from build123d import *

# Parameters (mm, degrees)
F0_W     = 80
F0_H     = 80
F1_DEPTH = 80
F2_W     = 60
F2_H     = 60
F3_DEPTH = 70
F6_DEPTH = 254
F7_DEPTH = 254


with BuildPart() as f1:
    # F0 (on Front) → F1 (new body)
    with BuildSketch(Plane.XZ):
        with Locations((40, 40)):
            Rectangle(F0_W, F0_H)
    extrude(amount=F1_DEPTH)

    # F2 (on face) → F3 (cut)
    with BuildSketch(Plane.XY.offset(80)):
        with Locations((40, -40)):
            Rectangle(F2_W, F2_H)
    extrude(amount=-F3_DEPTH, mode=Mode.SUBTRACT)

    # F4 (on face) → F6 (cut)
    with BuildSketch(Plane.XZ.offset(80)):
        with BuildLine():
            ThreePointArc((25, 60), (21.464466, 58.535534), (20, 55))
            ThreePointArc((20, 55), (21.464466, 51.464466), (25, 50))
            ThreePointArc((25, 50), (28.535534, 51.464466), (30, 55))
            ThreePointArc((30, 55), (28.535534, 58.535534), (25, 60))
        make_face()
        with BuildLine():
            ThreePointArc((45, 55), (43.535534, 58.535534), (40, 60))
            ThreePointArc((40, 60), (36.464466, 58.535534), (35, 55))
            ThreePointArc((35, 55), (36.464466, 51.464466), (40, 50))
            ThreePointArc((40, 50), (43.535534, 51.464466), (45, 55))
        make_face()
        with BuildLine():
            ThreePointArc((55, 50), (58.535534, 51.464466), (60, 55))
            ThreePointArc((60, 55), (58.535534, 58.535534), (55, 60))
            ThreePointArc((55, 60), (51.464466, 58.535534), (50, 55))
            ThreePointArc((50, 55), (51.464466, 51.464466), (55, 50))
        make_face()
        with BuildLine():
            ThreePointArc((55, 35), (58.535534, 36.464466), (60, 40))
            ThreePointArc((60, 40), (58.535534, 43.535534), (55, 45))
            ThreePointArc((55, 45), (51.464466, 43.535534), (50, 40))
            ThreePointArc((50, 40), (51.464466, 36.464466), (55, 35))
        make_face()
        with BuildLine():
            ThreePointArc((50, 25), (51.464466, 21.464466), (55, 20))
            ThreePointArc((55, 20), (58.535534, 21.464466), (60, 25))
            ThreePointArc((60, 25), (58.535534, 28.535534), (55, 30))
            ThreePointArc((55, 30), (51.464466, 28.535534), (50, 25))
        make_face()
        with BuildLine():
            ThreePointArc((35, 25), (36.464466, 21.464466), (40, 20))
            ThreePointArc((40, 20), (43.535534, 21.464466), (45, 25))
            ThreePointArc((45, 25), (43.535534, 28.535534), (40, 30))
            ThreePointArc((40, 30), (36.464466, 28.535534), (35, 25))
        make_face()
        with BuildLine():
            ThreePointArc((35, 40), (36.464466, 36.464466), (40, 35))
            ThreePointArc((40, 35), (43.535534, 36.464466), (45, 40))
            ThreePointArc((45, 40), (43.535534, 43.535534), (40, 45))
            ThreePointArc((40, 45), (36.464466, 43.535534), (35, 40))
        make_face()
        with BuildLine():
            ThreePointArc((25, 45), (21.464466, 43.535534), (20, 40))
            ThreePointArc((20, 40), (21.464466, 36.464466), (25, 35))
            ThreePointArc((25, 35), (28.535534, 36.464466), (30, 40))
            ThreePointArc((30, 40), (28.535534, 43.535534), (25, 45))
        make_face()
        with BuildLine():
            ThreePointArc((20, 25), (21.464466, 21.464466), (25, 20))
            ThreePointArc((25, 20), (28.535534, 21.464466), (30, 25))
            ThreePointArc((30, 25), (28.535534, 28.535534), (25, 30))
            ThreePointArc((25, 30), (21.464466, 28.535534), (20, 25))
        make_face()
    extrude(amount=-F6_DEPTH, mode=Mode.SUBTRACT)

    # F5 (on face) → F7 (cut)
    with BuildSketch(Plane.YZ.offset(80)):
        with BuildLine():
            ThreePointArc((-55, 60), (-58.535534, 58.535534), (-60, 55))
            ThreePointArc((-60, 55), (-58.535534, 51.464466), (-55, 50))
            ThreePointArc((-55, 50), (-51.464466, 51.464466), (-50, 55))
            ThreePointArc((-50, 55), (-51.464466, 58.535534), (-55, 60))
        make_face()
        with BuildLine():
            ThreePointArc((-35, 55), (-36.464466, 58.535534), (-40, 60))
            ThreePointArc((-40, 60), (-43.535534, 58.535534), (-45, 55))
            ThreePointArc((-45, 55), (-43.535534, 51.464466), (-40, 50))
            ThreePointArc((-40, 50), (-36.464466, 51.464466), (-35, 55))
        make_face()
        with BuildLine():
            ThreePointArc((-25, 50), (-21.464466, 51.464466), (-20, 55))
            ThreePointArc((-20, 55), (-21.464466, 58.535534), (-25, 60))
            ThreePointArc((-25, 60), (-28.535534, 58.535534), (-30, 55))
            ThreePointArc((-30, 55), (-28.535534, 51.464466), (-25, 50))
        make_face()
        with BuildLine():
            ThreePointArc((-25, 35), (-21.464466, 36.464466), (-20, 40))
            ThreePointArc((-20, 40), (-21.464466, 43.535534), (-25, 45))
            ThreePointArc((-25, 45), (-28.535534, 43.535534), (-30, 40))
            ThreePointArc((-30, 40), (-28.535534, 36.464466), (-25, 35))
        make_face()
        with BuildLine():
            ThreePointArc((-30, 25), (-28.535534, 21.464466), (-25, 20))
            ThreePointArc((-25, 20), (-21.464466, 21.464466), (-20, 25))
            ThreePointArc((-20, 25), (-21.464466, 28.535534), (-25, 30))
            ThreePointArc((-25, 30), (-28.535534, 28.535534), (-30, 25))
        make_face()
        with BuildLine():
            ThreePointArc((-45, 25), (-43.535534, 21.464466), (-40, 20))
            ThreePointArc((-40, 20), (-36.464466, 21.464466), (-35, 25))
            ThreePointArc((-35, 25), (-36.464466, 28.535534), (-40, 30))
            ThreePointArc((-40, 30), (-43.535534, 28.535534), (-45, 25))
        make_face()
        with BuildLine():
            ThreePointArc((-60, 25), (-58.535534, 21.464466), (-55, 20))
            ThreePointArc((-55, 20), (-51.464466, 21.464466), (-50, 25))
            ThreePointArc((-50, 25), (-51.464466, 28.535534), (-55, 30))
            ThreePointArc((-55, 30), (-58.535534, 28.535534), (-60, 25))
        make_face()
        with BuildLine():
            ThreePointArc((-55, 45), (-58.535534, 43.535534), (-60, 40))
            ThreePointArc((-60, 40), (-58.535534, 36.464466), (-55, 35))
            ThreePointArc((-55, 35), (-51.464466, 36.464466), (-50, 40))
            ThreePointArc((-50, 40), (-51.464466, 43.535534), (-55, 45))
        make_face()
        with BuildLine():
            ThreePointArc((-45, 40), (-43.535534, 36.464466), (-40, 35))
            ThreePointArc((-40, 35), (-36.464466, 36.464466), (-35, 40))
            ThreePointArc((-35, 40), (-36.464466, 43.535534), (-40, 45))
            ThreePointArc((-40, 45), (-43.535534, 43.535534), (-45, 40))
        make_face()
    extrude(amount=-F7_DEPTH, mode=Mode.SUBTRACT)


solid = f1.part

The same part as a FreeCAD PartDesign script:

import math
import FreeCAD as App
import Part
import Sketcher
from FreeCAD import Vector

doc = App.newDocument("Part")
body = doc.addObject("PartDesign::Body", "Body")

# Sketch on XZ plane
sketch1 = body.newObject("Sketcher::SketchObject", "Sketch")
sketch1.AttachmentSupport = (doc.getObject("XZ_Plane"), [""])
sketch1.MapMode = "FlatFace"
sketch1.addGeometry(Part.LineSegment(Vector(0, 80, 0), Vector(0, 0, 0)), False)
sketch1.addGeometry(Part.LineSegment(Vector(0, 0, 0), Vector(80, 0, 0)), False)
sketch1.addGeometry(Part.LineSegment(Vector(80, 0, 0), Vector(80, 80, 0)), False)
sketch1.addGeometry(Part.LineSegment(Vector(80, 80, 0), Vector(0, 80, 0)), False)
sketch1.addConstraint(Sketcher.Constraint("Coincident", 0, 2, 1, 1))
sketch1.addConstraint(Sketcher.Constraint("Coincident", 1, 2, 2, 1))
sketch1.addConstraint(Sketcher.Constraint("Coincident", 2, 2, 3, 1))
sketch1.addConstraint(Sketcher.Constraint("Coincident", 3, 2, 0, 1))
sketch1.addConstraint(Sketcher.Constraint("Vertical", 0))
sketch1.addConstraint(Sketcher.Constraint("Horizontal", 1))
sketch1.addConstraint(Sketcher.Constraint("Vertical", 2))
sketch1.addConstraint(Sketcher.Constraint("Horizontal", 3))
sketch1.addConstraint(Sketcher.Constraint("Coincident", 0, 2, -1, 1))
sketch1.addConstraint(Sketcher.Constraint("Equal", 3, 0))
sketch1.addConstraint(Sketcher.Constraint("DistanceX", 1, 1, 1, 2, 80.0))
pad1 = body.newObject("PartDesign::Pad", "Pad")
pad1.Profile = sketch1
pad1.Length = 80

# Sketch on XY plane
sketch2 = body.newObject("Sketcher::SketchObject", "Sketch001")
sketch2.AttachmentSupport = (doc.getObject("XY_Plane"), [""])
sketch2.MapMode = "FlatFace"
sketch2.AttachmentOffset = App.Placement(Vector(0, 0, 80), App.Rotation())
sketch2.addGeometry(Part.LineSegment(Vector(10, -10, 0), Vector(10, -70, 0)), False)
sketch2.addGeometry(Part.LineSegment(Vector(10, -70, 0), Vector(70, -70, 0)), False)
sketch2.addGeometry(Part.LineSegment(Vector(70, -70, 0), Vector(70, -10, 0)), False)
sketch2.addGeometry(Part.LineSegment(Vector(70, -10, 0), Vector(10, -10, 0)), False)
sketch2.addConstraint(Sketcher.Constraint("Coincident", 0, 2, 1, 1))
sketch2.addConstraint(Sketcher.Constraint("Coincident", 1, 2, 2, 1))
sketch2.addConstraint(Sketcher.Constraint("Coincident", 2, 2, 3, 1))
sketch2.addConstraint(Sketcher.Constraint("Coincident", 3, 2, 0, 1))
sketch2.addConstraint(Sketcher.Constraint("Vertical", 0))
sketch2.addConstraint(Sketcher.Constraint("Horizontal", 1))
sketch2.addConstraint(Sketcher.Constraint("Vertical", 2))
sketch2.addConstraint(Sketcher.Constraint("Horizontal", 3))
sketch2.addConstraint(Sketcher.Constraint("Equal", 3, 0))
sketch2.addConstraint(Sketcher.Constraint("DistanceX", 1, 1, 1, 2, 60.0))
sketch2.addConstraint(Sketcher.Constraint("DistanceX", -1, 1, 0, 2, 10.0))
sketch2.addConstraint(Sketcher.Constraint("DistanceY", 0, 2, -1, 1, 70.0))
pocket1 = body.newObject("PartDesign::Pocket", "Pocket")
pocket1.Profile = sketch2
pocket1.Length = 70

# Sketch on XZ plane
sketch3 = body.newObject("Sketcher::SketchObject", "Sketch002")
sketch3.AttachmentSupport = (doc.getObject("XZ_Plane"), [""])
sketch3.MapMode = "FlatFace"
sketch3.AttachmentOffset = App.Placement(Vector(0, 0, 80), App.Rotation())
sketch3.addGeometry(Part.ArcOfCircle(Part.Circle(Vector(25, 55, 0), Vector(0, 0, 1), 5), math.radians(90), math.radians(180)), False)
sketch3.addGeometry(Part.ArcOfCircle(Part.Circle(Vector(25, 55, 0), Vector(0, 0, 1), 5), math.radians(180), math.radians(270)), False)
sketch3.addGeometry(Part.ArcOfCircle(Part.Circle(Vector(25, 55, 0), Vector(0, 0, 1), 5), math.radians(-90), math.radians(0)), False)
sketch3.addGeometry(Part.ArcOfCircle(Part.Circle(Vector(25, 55, 0), Vector(0, 0, 1), 5), math.radians(0), math.radians(90)), False)
sketch3.addGeometry(Part.ArcOfCircle(Part.Circle(Vector(40, 55, 0), Vector(0, 0, 1), 5), math.radians(0), math.radians(90)), False)
sketch3.addGeometry(Part.ArcOfCircle(Part.Circle(Vector(40, 55, 0), Vector(0, 0, 1), 5), math.radians(90), math.radians(180)), False)
sketch3.addGeometry(Part.ArcOfCircle(Part.Circle(Vector(40, 55, 0), Vector(0, 0, 1), 5), math.radians(180), math.radians(270)), False)
sketch3.addGeometry(Part.ArcOfCircle(Part.Circle(Vector(40, 55, 0), Vector(0, 0, 1), 5), math.radians(-90), math.radians(0)), False)
sketch3.addGeometry(Part.ArcOfCircle(Part.Circle(Vector(55, 55, 0), Vector(0, 0, 1), 5), math.radians(-90), math.radians(0)), False)
sketch3.addGeometry(Part.ArcOfCircle(Part.Circle(Vector(55, 55, 0), Vector(0, 0, 1), 5), math.radians(0), math.radians(90)), False)
sketch3.addGeometry(Part.ArcOfCircle(Part.Circle(Vector(55, 55, 0), Vector(0, 0, 1), 5), math.radians(90), math.radians(180)), False)
sketch3.addGeometry(Part.ArcOfCircle(Part.Circle(Vector(55, 55, 0), Vector(0, 0, 1), 5), math.radians(180), math.radians(270)), False)
sketch3.addGeometry(Part.ArcOfCircle(Part.Circle(Vector(55, 40, 0), Vector(0, 0, 1), 5), math.radians(-90), math.radians(0)), False)
sketch3.addGeometry(Part.ArcOfCircle(Part.Circle(Vector(55, 40, 0), Vector(0, 0, 1), 5), math.radians(0), math.radians(90)), False)
sketch3.addGeometry(Part.ArcOfCircle(Part.Circle(Vector(55, 40, 0), Vector(0, 0, 1), 5), math.radians(90), math.radians(180)), False)
sketch3.addGeometry(Part.ArcOfCircle(Part.Circle(Vector(55, 40, 0), Vector(0, 0, 1), 5), math.radians(180), math.radians(270)), False)
sketch3.addGeometry(Part.ArcOfCircle(Part.Circle(Vector(55, 25, 0), Vector(0, 0, 1), 5), math.radians(180), math.radians(270)), False)
sketch3.addGeometry(Part.ArcOfCircle(Part.Circle(Vector(55, 25, 0), Vector(0, 0, 1), 5), math.radians(-90), math.radians(0)), False)
sketch3.addGeometry(Part.ArcOfCircle(Part.Circle(Vector(55, 25, 0), Vector(0, 0, 1), 5), math.radians(0), math.radians(90)), False)
sketch3.addGeometry(Part.ArcOfCircle(Part.Circle(Vector(55, 25, 0), Vector(0, 0, 1), 5), math.radians(90), math.radians(180)), False)
sketch3.addGeometry(Part.ArcOfCircle(Part.Circle(Vector(40, 25, 0), Vector(0, 0, 1), 5), math.radians(180), math.radians(270)), False)
sketch3.addGeometry(Part.ArcOfCircle(Part.Circle(Vector(40, 25, 0), Vector(0, 0, 1), 5), math.radians(-90), math.radians(0)), False)
sketch3.addGeometry(Part.ArcOfCircle(Part.Circle(Vector(40, 25, 0), Vector(0, 0, 1), 5), math.radians(0), math.radians(90)), False)
sketch3.addGeometry(Part.ArcOfCircle(Part.Circle(Vector(40, 25, 0), Vector(0, 0, 1), 5), math.radians(90), math.radians(180)), False)
sketch3.addGeometry(Part.ArcOfCircle(Part.Circle(Vector(40, 40, 0), Vector(0, 0, 1), 5), math.radians(180), math.radians(270)), False)
sketch3.addGeometry(Part.ArcOfCircle(Part.Circle(Vector(40, 40, 0), Vector(0, 0, 1), 5), math.radians(-90), math.radians(0)), False)
sketch3.addGeometry(Part.ArcOfCircle(Part.Circle(Vector(40, 40, 0), Vector(0, 0, 1), 5), math.radians(0), math.radians(90)), False)
sketch3.addGeometry(Part.ArcOfCircle(Part.Circle(Vector(40, 40, 0), Vector(0, 0, 1), 5), math.radians(90), math.radians(180)), False)
sketch3.addGeometry(Part.ArcOfCircle(Part.Circle(Vector(25, 40, 0), Vector(0, 0, 1), 5), math.radians(90), math.radians(180)), False)
sketch3.addGeometry(Part.ArcOfCircle(Part.Circle(Vector(25, 40, 0), Vector(0, 0, 1), 5), math.radians(180), math.radians(270)), False)
sketch3.addGeometry(Part.ArcOfCircle(Part.Circle(Vector(25, 40, 0), Vector(0, 0, 1), 5), math.radians(-90), math.radians(0)), False)
sketch3.addGeometry(Part.ArcOfCircle(Part.Circle(Vector(25, 40, 0), Vector(0, 0, 1), 5), math.radians(0), math.radians(90)), False)
sketch3.addGeometry(Part.ArcOfCircle(Part.Circle(Vector(25, 25, 0), Vector(0, 0, 1), 5), math.radians(180), math.radians(270)), False)
sketch3.addGeometry(Part.ArcOfCircle(Part.Circle(Vector(25, 25, 0), Vector(0, 0, 1), 5), math.radians(-90), math.radians(0)), False)
sketch3.addGeometry(Part.ArcOfCircle(Part.Circle(Vector(25, 25, 0), Vector(0, 0, 1), 5), math.radians(0), math.radians(90)), False)
sketch3.addGeometry(Part.ArcOfCircle(Part.Circle(Vector(25, 25, 0), Vector(0, 0, 1), 5), math.radians(90), math.radians(180)), False)
sketch3.addConstraint(Sketcher.Constraint("Tangent", 0, 2, 1, 1))
sketch3.addConstraint(Sketcher.Constraint("Tangent", 1, 2, 2, 1))
sketch3.addConstraint(Sketcher.Constraint("Tangent", 2, 2, 3, 1))
sketch3.addConstraint(Sketcher.Constraint("Tangent", 3, 2, 0, 1))
sketch3.addConstraint(Sketcher.Constraint("Tangent", 4, 2, 5, 1))
sketch3.addConstraint(Sketcher.Constraint("Tangent", 5, 2, 6, 1))
sketch3.addConstraint(Sketcher.Constraint("Tangent", 6, 2, 7, 1))
sketch3.addConstraint(Sketcher.Constraint("Tangent", 7, 2, 4, 1))
sketch3.addConstraint(Sketcher.Constraint("Tangent", 8, 2, 9, 1))
sketch3.addConstraint(Sketcher.Constraint("Tangent", 9, 2, 10, 1))
sketch3.addConstraint(Sketcher.Constraint("Tangent", 10, 2, 11, 1))
sketch3.addConstraint(Sketcher.Constraint("Tangent", 11, 2, 8, 1))
sketch3.addConstraint(Sketcher.Constraint("Tangent", 12, 2, 13, 1))
sketch3.addConstraint(Sketcher.Constraint("Tangent", 13, 2, 14, 1))
sketch3.addConstraint(Sketcher.Constraint("Tangent", 14, 2, 15, 1))
sketch3.addConstraint(Sketcher.Constraint("Tangent", 15, 2, 12, 1))
sketch3.addConstraint(Sketcher.Constraint("Tangent", 16, 2, 17, 1))
sketch3.addConstraint(Sketcher.Constraint("Tangent", 17, 2, 18, 1))
sketch3.addConstraint(Sketcher.Constraint("Tangent", 18, 2, 19, 1))
sketch3.addConstraint(Sketcher.Constraint("Tangent", 19, 2, 16, 1))
sketch3.addConstraint(Sketcher.Constraint("Tangent", 20, 2, 21, 1))
sketch3.addConstraint(Sketcher.Constraint("Tangent", 21, 2, 22, 1))
sketch3.addConstraint(Sketcher.Constraint("Tangent", 22, 2, 23, 1))
sketch3.addConstraint(Sketcher.Constraint("Tangent", 23, 2, 20, 1))
sketch3.addConstraint(Sketcher.Constraint("Tangent", 24, 2, 25, 1))
sketch3.addConstraint(Sketcher.Constraint("Tangent", 25, 2, 26, 1))
sketch3.addConstraint(Sketcher.Constraint("Tangent", 26, 2, 27, 1))
sketch3.addConstraint(Sketcher.Constraint("Tangent", 27, 2, 24, 1))
sketch3.addConstraint(Sketcher.Constraint("Tangent", 28, 2, 29, 1))
sketch3.addConstraint(Sketcher.Constraint("Tangent", 29, 2, 30, 1))
sketch3.addConstraint(Sketcher.Constraint("Tangent", 30, 2, 31, 1))
sketch3.addConstraint(Sketcher.Constraint("Tangent", 31, 2, 28, 1))
sketch3.addConstraint(Sketcher.Constraint("Tangent", 32, 2, 33, 1))
sketch3.addConstraint(Sketcher.Constraint("Tangent", 33, 2, 34, 1))
sketch3.addConstraint(Sketcher.Constraint("Tangent", 34, 2, 35, 1))
sketch3.addConstraint(Sketcher.Constraint("Tangent", 35, 2, 32, 1))
sketch3.addConstraint(Sketcher.Constraint("Equal", 0, 1))
sketch3.addConstraint(Sketcher.Constraint("Equal", 3, 4))
sketch3.addConstraint(Sketcher.Constraint("Equal", 4, 5))
sketch3.addConstraint(Sketcher.Constraint("Equal", 7, 8))
sketch3.addConstraint(Sketcher.Constraint("Equal", 8, 9))
sketch3.addConstraint(Sketcher.Constraint("Equal", 11, 12))
sketch3.addConstraint(Sketcher.Constraint("Equal", 12, 13))
sketch3.addConstraint(Sketcher.Constraint("Equal", 15, 16))
sketch3.addConstraint(Sketcher.Constraint("Equal", 16, 17))
sketch3.addConstraint(Sketcher.Constraint("Equal", 19, 20))
sketch3.addConstraint(Sketcher.Constraint("Equal", 20, 21))
sketch3.addConstraint(Sketcher.Constraint("Equal", 23, 24))
sketch3.addConstraint(Sketcher.Constraint("Equal", 24, 25))
sketch3.addConstraint(Sketcher.Constraint("Equal", 27, 28))
sketch3.addConstraint(Sketcher.Constraint("Equal", 28, 29))
sketch3.addConstraint(Sketcher.Constraint("Equal", 31, 32))
sketch3.addConstraint(Sketcher.Constraint("Equal", 32, 33))
sketch3.addConstraint(Sketcher.Constraint("Horizontal", 3, 3, 4, 3))
sketch3.addConstraint(Sketcher.Constraint("Horizontal", 7, 3, 8, 3))
sketch3.addConstraint(Sketcher.Constraint("Horizontal", 19, 3, 20, 3))
sketch3.addConstraint(Sketcher.Constraint("Horizontal", 15, 3, 24, 3))
sketch3.addConstraint(Sketcher.Constraint("Horizontal", 27, 3, 28, 3))
sketch3.addConstraint(Sketcher.Constraint("Horizontal", 23, 3, 32, 3))
sketch3.addConstraint(Sketcher.Constraint("Horizontal", 11, 3, 0, 2))
sketch3.addConstraint(Sketcher.Constraint("Horizontal", 0, 2, 2, 2))
sketch3.addConstraint(Sketcher.Constraint("Horizontal", 2, 2, 5, 2))
sketch3.addConstraint(Sketcher.Constraint("Horizontal", 5, 2, 7, 2))
sketch3.addConstraint(Sketcher.Constraint("Horizontal", 7, 2, 8, 2))
sketch3.addConstraint(Sketcher.Constraint("Horizontal", 8, 2, 10, 2))
sketch3.addConstraint(Sketcher.Constraint("Horizontal", 31, 3, 12, 2))
sketch3.addConstraint(Sketcher.Constraint("Horizontal", 12, 2, 14, 2))
sketch3.addConstraint(Sketcher.Constraint("Horizontal", 35, 3, 17, 2))
sketch3.addConstraint(Sketcher.Constraint("Horizontal", 17, 2, 19, 2))
sketch3.addConstraint(Sketcher.Constraint("Horizontal", 19, 2, 21, 2))
sketch3.addConstraint(Sketcher.Constraint("Horizontal", 21, 2, 23, 2))
sketch3.addConstraint(Sketcher.Constraint("Horizontal", 14, 2, 25, 2))
sketch3.addConstraint(Sketcher.Constraint("Horizontal", 25, 2, 27, 2))
sketch3.addConstraint(Sketcher.Constraint("Horizontal", 27, 2, 28, 2))
sketch3.addConstraint(Sketcher.Constraint("Horizontal", 28, 2, 30, 2))
sketch3.addConstraint(Sketcher.Constraint("Horizontal", 23, 2, 33, 2))
sketch3.addConstraint(Sketcher.Constraint("Horizontal", 33, 2, 35, 2))
sketch3.addConstraint(Sketcher.Constraint("Vertical", 11, 3, 12, 3))
sketch3.addConstraint(Sketcher.Constraint("Vertical", 15, 3, 16, 3))
sketch3.addConstraint(Sketcher.Constraint("Vertical", 7, 3, 20, 3))
sketch3.addConstraint(Sketcher.Constraint("Vertical", 23, 3, 24, 3))
sketch3.addConstraint(Sketcher.Constraint("Vertical", 3, 3, 28, 3))
sketch3.addConstraint(Sketcher.Constraint("Vertical", 31, 3, 32, 3))
sketch3.addConstraint(Sketcher.Constraint("Vertical", 35, 3, 1, 2))
sketch3.addConstraint(Sketcher.Constraint("Vertical", 1, 2, 3, 2))
sketch3.addConstraint(Sketcher.Constraint("Vertical", 27, 3, 4, 2))
sketch3.addConstraint(Sketcher.Constraint("Vertical", 4, 2, 6, 2))
sketch3.addConstraint(Sketcher.Constraint("Vertical", 19, 3, 9, 2))
sketch3.addConstraint(Sketcher.Constraint("Vertical", 9, 2, 11, 2))
sketch3.addConstraint(Sketcher.Constraint("Vertical", 11, 2, 13, 2))
sketch3.addConstraint(Sketcher.Constraint("Vertical", 13, 2, 15, 2))
sketch3.addConstraint(Sketcher.Constraint("Vertical", 15, 2, 16, 2))
sketch3.addConstraint(Sketcher.Constraint("Vertical", 16, 2, 18, 2))
sketch3.addConstraint(Sketcher.Constraint("Vertical", 6, 2, 20, 2))
sketch3.addConstraint(Sketcher.Constraint("Vertical", 20, 2, 22, 2))
sketch3.addConstraint(Sketcher.Constraint("Vertical", 22, 2, 24, 2))
sketch3.addConstraint(Sketcher.Constraint("Vertical", 24, 2, 26, 2))
sketch3.addConstraint(Sketcher.Constraint("Vertical", 3, 2, 29, 2))
sketch3.addConstraint(Sketcher.Constraint("Vertical", 29, 2, 31, 2))
sketch3.addConstraint(Sketcher.Constraint("Vertical", 31, 2, 32, 2))
sketch3.addConstraint(Sketcher.Constraint("Vertical", 32, 2, 34, 2))
sketch3.addConstraint(Sketcher.Constraint("Radius", 0, 5.0))
sketch3.addConstraint(Sketcher.Constraint("DistanceX", -1, 1, 0, 3, 25.0))
sketch3.addConstraint(Sketcher.Constraint("DistanceY", -1, 1, 0, 3, 55.0))
sketch3.addConstraint(Sketcher.Constraint("DistanceX", -1, 1, 4, 3, 40.0))
sketch3.addConstraint(Sketcher.Constraint("DistanceX", -1, 1, 8, 3, 55.0))
sketch3.addConstraint(Sketcher.Constraint("DistanceY", -1, 1, 12, 3, 40.0))
sketch3.addConstraint(Sketcher.Constraint("DistanceY", -1, 1, 16, 3, 25.0))
pocket2 = body.newObject("PartDesign::Pocket", "Pocket001")
pocket2.Profile = sketch3
pocket2.Length = 254

# Sketch on YZ plane
sketch4 = body.newObject("Sketcher::SketchObject", "Sketch003")
sketch4.AttachmentSupport = (doc.getObject("YZ_Plane"), [""])
sketch4.MapMode = "FlatFace"
sketch4.AttachmentOffset = App.Placement(Vector(0, 0, 80), App.Rotation())
sketch4.addGeometry(Part.ArcOfCircle(Part.Circle(Vector(-55, 55, 0), Vector(0, 0, 1), 5), math.radians(90), math.radians(180)), False)
sketch4.addGeometry(Part.ArcOfCircle(Part.Circle(Vector(-55, 55, 0), Vector(0, 0, 1), 5), math.radians(180), math.radians(270)), False)
sketch4.addGeometry(Part.ArcOfCircle(Part.Circle(Vector(-55, 55, 0), Vector(0, 0, 1), 5), math.radians(-90), math.radians(0)), False)
sketch4.addGeometry(Part.ArcOfCircle(Part.Circle(Vector(-55, 55, 0), Vector(0, 0, 1), 5), math.radians(0), math.radians(90)), False)
sketch4.addGeometry(Part.ArcOfCircle(Part.Circle(Vector(-40, 55, 0), Vector(0, 0, 1), 5), math.radians(0), math.radians(90)), False)
sketch4.addGeometry(Part.ArcOfCircle(Part.Circle(Vector(-40, 55, 0), Vector(0, 0, 1), 5), math.radians(90), math.radians(180)), False)
sketch4.addGeometry(Part.ArcOfCircle(Part.Circle(Vector(-40, 55, 0), Vector(0, 0, 1), 5), math.radians(180), math.radians(270)), False)
sketch4.addGeometry(Part.ArcOfCircle(Part.Circle(Vector(-40, 55, 0), Vector(0, 0, 1), 5), math.radians(-90), math.radians(0)), False)
sketch4.addGeometry(Part.ArcOfCircle(Part.Circle(Vector(-25, 55, 0), Vector(0, 0, 1), 5), math.radians(-90), math.radians(0)), False)
sketch4.addGeometry(Part.ArcOfCircle(Part.Circle(Vector(-25, 55, 0), Vector(0, 0, 1), 5), math.radians(0), math.radians(90)), False)
sketch4.addGeometry(Part.ArcOfCircle(Part.Circle(Vector(-25, 55, 0), Vector(0, 0, 1), 5), math.radians(90), math.radians(180)), False)
sketch4.addGeometry(Part.ArcOfCircle(Part.Circle(Vector(-25, 55, 0), Vector(0, 0, 1), 5), math.radians(180), math.radians(270)), False)
sketch4.addGeometry(Part.ArcOfCircle(Part.Circle(Vector(-25, 40, 0), Vector(0, 0, 1), 5), math.radians(-90), math.radians(0)), False)
sketch4.addGeometry(Part.ArcOfCircle(Part.Circle(Vector(-25, 40, 0), Vector(0, 0, 1), 5), math.radians(0), math.radians(90)), False)
sketch4.addGeometry(Part.ArcOfCircle(Part.Circle(Vector(-25, 40, 0), Vector(0, 0, 1), 5), math.radians(90), math.radians(180)), False)
sketch4.addGeometry(Part.ArcOfCircle(Part.Circle(Vector(-25, 40, 0), Vector(0, 0, 1), 5), math.radians(180), math.radians(270)), False)
sketch4.addGeometry(Part.ArcOfCircle(Part.Circle(Vector(-25, 25, 0), Vector(0, 0, 1), 5), math.radians(180), math.radians(270)), False)
sketch4.addGeometry(Part.ArcOfCircle(Part.Circle(Vector(-25, 25, 0), Vector(0, 0, 1), 5), math.radians(-90), math.radians(0)), False)
sketch4.addGeometry(Part.ArcOfCircle(Part.Circle(Vector(-25, 25, 0), Vector(0, 0, 1), 5), math.radians(0), math.radians(90)), False)
sketch4.addGeometry(Part.ArcOfCircle(Part.Circle(Vector(-25, 25, 0), Vector(0, 0, 1), 5), math.radians(90), math.radians(180)), False)
sketch4.addGeometry(Part.ArcOfCircle(Part.Circle(Vector(-40, 25, 0), Vector(0, 0, 1), 5), math.radians(180), math.radians(270)), False)
sketch4.addGeometry(Part.ArcOfCircle(Part.Circle(Vector(-40, 25, 0), Vector(0, 0, 1), 5), math.radians(-90), math.radians(0)), False)
sketch4.addGeometry(Part.ArcOfCircle(Part.Circle(Vector(-40, 25, 0), Vector(0, 0, 1), 5), math.radians(0), math.radians(90)), False)
sketch4.addGeometry(Part.ArcOfCircle(Part.Circle(Vector(-40, 25, 0), Vector(0, 0, 1), 5), math.radians(90), math.radians(180)), False)
sketch4.addGeometry(Part.ArcOfCircle(Part.Circle(Vector(-55, 25, 0), Vector(0, 0, 1), 5), math.radians(180), math.radians(270)), False)
sketch4.addGeometry(Part.ArcOfCircle(Part.Circle(Vector(-55, 25, 0), Vector(0, 0, 1), 5), math.radians(-90), math.radians(0)), False)
sketch4.addGeometry(Part.ArcOfCircle(Part.Circle(Vector(-55, 25, 0), Vector(0, 0, 1), 5), math.radians(0), math.radians(90)), False)
sketch4.addGeometry(Part.ArcOfCircle(Part.Circle(Vector(-55, 25, 0), Vector(0, 0, 1), 5), math.radians(90), math.radians(180)), False)
sketch4.addGeometry(Part.ArcOfCircle(Part.Circle(Vector(-55, 40, 0), Vector(0, 0, 1), 5), math.radians(90), math.radians(180)), False)
sketch4.addGeometry(Part.ArcOfCircle(Part.Circle(Vector(-55, 40, 0), Vector(0, 0, 1), 5), math.radians(180), math.radians(270)), False)
sketch4.addGeometry(Part.ArcOfCircle(Part.Circle(Vector(-55, 40, 0), Vector(0, 0, 1), 5), math.radians(-90), math.radians(0)), False)
sketch4.addGeometry(Part.ArcOfCircle(Part.Circle(Vector(-55, 40, 0), Vector(0, 0, 1), 5), math.radians(0), math.radians(90)), False)
sketch4.addGeometry(Part.ArcOfCircle(Part.Circle(Vector(-40, 40, 0), Vector(0, 0, 1), 5), math.radians(180), math.radians(270)), False)
sketch4.addGeometry(Part.ArcOfCircle(Part.Circle(Vector(-40, 40, 0), Vector(0, 0, 1), 5), math.radians(-90), math.radians(0)), False)
sketch4.addGeometry(Part.ArcOfCircle(Part.Circle(Vector(-40, 40, 0), Vector(0, 0, 1), 5), math.radians(0), math.radians(90)), False)
sketch4.addGeometry(Part.ArcOfCircle(Part.Circle(Vector(-40, 40, 0), Vector(0, 0, 1), 5), math.radians(90), math.radians(180)), False)
sketch4.addConstraint(Sketcher.Constraint("Tangent", 0, 2, 1, 1))
sketch4.addConstraint(Sketcher.Constraint("Tangent", 1, 2, 2, 1))
sketch4.addConstraint(Sketcher.Constraint("Tangent", 2, 2, 3, 1))
sketch4.addConstraint(Sketcher.Constraint("Tangent", 3, 2, 0, 1))
sketch4.addConstraint(Sketcher.Constraint("Tangent", 4, 2, 5, 1))
sketch4.addConstraint(Sketcher.Constraint("Tangent", 5, 2, 6, 1))
sketch4.addConstraint(Sketcher.Constraint("Tangent", 6, 2, 7, 1))
sketch4.addConstraint(Sketcher.Constraint("Tangent", 7, 2, 4, 1))
sketch4.addConstraint(Sketcher.Constraint("Tangent", 8, 2, 9, 1))
sketch4.addConstraint(Sketcher.Constraint("Tangent", 9, 2, 10, 1))
sketch4.addConstraint(Sketcher.Constraint("Tangent", 10, 2, 11, 1))
sketch4.addConstraint(Sketcher.Constraint("Tangent", 11, 2, 8, 1))
sketch4.addConstraint(Sketcher.Constraint("Tangent", 12, 2, 13, 1))
sketch4.addConstraint(Sketcher.Constraint("Tangent", 13, 2, 14, 1))
sketch4.addConstraint(Sketcher.Constraint("Tangent", 14, 2, 15, 1))
sketch4.addConstraint(Sketcher.Constraint("Tangent", 15, 2, 12, 1))
sketch4.addConstraint(Sketcher.Constraint("Tangent", 16, 2, 17, 1))
sketch4.addConstraint(Sketcher.Constraint("Tangent", 17, 2, 18, 1))
sketch4.addConstraint(Sketcher.Constraint("Tangent", 18, 2, 19, 1))
sketch4.addConstraint(Sketcher.Constraint("Tangent", 19, 2, 16, 1))
sketch4.addConstraint(Sketcher.Constraint("Tangent", 20, 2, 21, 1))
sketch4.addConstraint(Sketcher.Constraint("Tangent", 21, 2, 22, 1))
sketch4.addConstraint(Sketcher.Constraint("Tangent", 22, 2, 23, 1))
sketch4.addConstraint(Sketcher.Constraint("Tangent", 23, 2, 20, 1))
sketch4.addConstraint(Sketcher.Constraint("Tangent", 24, 2, 25, 1))
sketch4.addConstraint(Sketcher.Constraint("Tangent", 25, 2, 26, 1))
sketch4.addConstraint(Sketcher.Constraint("Tangent", 26, 2, 27, 1))
sketch4.addConstraint(Sketcher.Constraint("Tangent", 27, 2, 24, 1))
sketch4.addConstraint(Sketcher.Constraint("Tangent", 28, 2, 29, 1))
sketch4.addConstraint(Sketcher.Constraint("Tangent", 29, 2, 30, 1))
sketch4.addConstraint(Sketcher.Constraint("Tangent", 30, 2, 31, 1))
sketch4.addConstraint(Sketcher.Constraint("Tangent", 31, 2, 28, 1))
sketch4.addConstraint(Sketcher.Constraint("Tangent", 32, 2, 33, 1))
sketch4.addConstraint(Sketcher.Constraint("Tangent", 33, 2, 34, 1))
sketch4.addConstraint(Sketcher.Constraint("Tangent", 34, 2, 35, 1))
sketch4.addConstraint(Sketcher.Constraint("Tangent", 35, 2, 32, 1))
sketch4.addConstraint(Sketcher.Constraint("Equal", 0, 1))
sketch4.addConstraint(Sketcher.Constraint("Equal", 3, 4))
sketch4.addConstraint(Sketcher.Constraint("Equal", 4, 5))
sketch4.addConstraint(Sketcher.Constraint("Equal", 7, 8))
sketch4.addConstraint(Sketcher.Constraint("Equal", 8, 9))
sketch4.addConstraint(Sketcher.Constraint("Equal", 11, 12))
sketch4.addConstraint(Sketcher.Constraint("Equal", 12, 13))
sketch4.addConstraint(Sketcher.Constraint("Equal", 15, 16))
sketch4.addConstraint(Sketcher.Constraint("Equal", 16, 17))
sketch4.addConstraint(Sketcher.Constraint("Equal", 19, 20))
sketch4.addConstraint(Sketcher.Constraint("Equal", 20, 21))
sketch4.addConstraint(Sketcher.Constraint("Equal", 23, 24))
sketch4.addConstraint(Sketcher.Constraint("Equal", 24, 25))
sketch4.addConstraint(Sketcher.Constraint("Equal", 27, 28))
sketch4.addConstraint(Sketcher.Constraint("Equal", 28, 29))
sketch4.addConstraint(Sketcher.Constraint("Equal", 31, 32))
sketch4.addConstraint(Sketcher.Constraint("Equal", 32, 33))
sketch4.addConstraint(Sketcher.Constraint("Horizontal", 3, 3, 4, 3))
sketch4.addConstraint(Sketcher.Constraint("Horizontal", 7, 3, 8, 3))
sketch4.addConstraint(Sketcher.Constraint("Horizontal", 19, 3, 20, 3))
sketch4.addConstraint(Sketcher.Constraint("Horizontal", 23, 3, 24, 3))
sketch4.addConstraint(Sketcher.Constraint("Horizontal", 15, 3, 28, 3))
sketch4.addConstraint(Sketcher.Constraint("Horizontal", 31, 3, 32, 3))
sketch4.addConstraint(Sketcher.Constraint("Horizontal", 11, 3, 0, 2))
sketch4.addConstraint(Sketcher.Constraint("Horizontal", 0, 2, 2, 2))
sketch4.addConstraint(Sketcher.Constraint("Horizontal", 2, 2, 5, 2))
sketch4.addConstraint(Sketcher.Constraint("Horizontal", 5, 2, 7, 2))
sketch4.addConstraint(Sketcher.Constraint("Horizontal", 7, 2, 8, 2))
sketch4.addConstraint(Sketcher.Constraint("Horizontal", 8, 2, 10, 2))
sketch4.addConstraint(Sketcher.Constraint("Horizontal", 35, 3, 12, 2))
sketch4.addConstraint(Sketcher.Constraint("Horizontal", 12, 2, 14, 2))
sketch4.addConstraint(Sketcher.Constraint("Horizontal", 27, 3, 17, 2))
sketch4.addConstraint(Sketcher.Constraint("Horizontal", 17, 2, 19, 2))
sketch4.addConstraint(Sketcher.Constraint("Horizontal", 19, 2, 21, 2))
sketch4.addConstraint(Sketcher.Constraint("Horizontal", 21, 2, 23, 2))
sketch4.addConstraint(Sketcher.Constraint("Horizontal", 23, 2, 25, 2))
sketch4.addConstraint(Sketcher.Constraint("Horizontal", 25, 2, 27, 2))
sketch4.addConstraint(Sketcher.Constraint("Horizontal", 14, 2, 28, 2))
sketch4.addConstraint(Sketcher.Constraint("Horizontal", 28, 2, 30, 2))
sketch4.addConstraint(Sketcher.Constraint("Horizontal", 30, 2, 33, 2))
sketch4.addConstraint(Sketcher.Constraint("Horizontal", 33, 2, 35, 2))
sketch4.addConstraint(Sketcher.Constraint("Vertical", 11, 3, 12, 3))
sketch4.addConstraint(Sketcher.Constraint("Vertical", 15, 3, 16, 3))
sketch4.addConstraint(Sketcher.Constraint("Vertical", 7, 3, 20, 3))
sketch4.addConstraint(Sketcher.Constraint("Vertical", 3, 3, 24, 3))
sketch4.addConstraint(Sketcher.Constraint("Vertical", 27, 3, 28, 3))
sketch4.addConstraint(Sketcher.Constraint("Vertical", 23, 3, 32, 3))
sketch4.addConstraint(Sketcher.Constraint("Vertical", 31, 3, 1, 2))
sketch4.addConstraint(Sketcher.Constraint("Vertical", 1, 2, 3, 2))
sketch4.addConstraint(Sketcher.Constraint("Vertical", 35, 3, 4, 2))
sketch4.addConstraint(Sketcher.Constraint("Vertical", 4, 2, 6, 2))
sketch4.addConstraint(Sketcher.Constraint("Vertical", 19, 3, 9, 2))
sketch4.addConstraint(Sketcher.Constraint("Vertical", 9, 2, 11, 2))
sketch4.addConstraint(Sketcher.Constraint("Vertical", 11, 2, 13, 2))
sketch4.addConstraint(Sketcher.Constraint("Vertical", 13, 2, 15, 2))
sketch4.addConstraint(Sketcher.Constraint("Vertical", 15, 2, 16, 2))
sketch4.addConstraint(Sketcher.Constraint("Vertical", 16, 2, 18, 2))
sketch4.addConstraint(Sketcher.Constraint("Vertical", 6, 2, 20, 2))
sketch4.addConstraint(Sketcher.Constraint("Vertical", 20, 2, 22, 2))
sketch4.addConstraint(Sketcher.Constraint("Vertical", 3, 2, 24, 2))
sketch4.addConstraint(Sketcher.Constraint("Vertical", 24, 2, 26, 2))
sketch4.addConstraint(Sketcher.Constraint("Vertical", 26, 2, 29, 2))
sketch4.addConstraint(Sketcher.Constraint("Vertical", 29, 2, 31, 2))
sketch4.addConstraint(Sketcher.Constraint("Vertical", 22, 2, 32, 2))
sketch4.addConstraint(Sketcher.Constraint("Vertical", 32, 2, 34, 2))
sketch4.addConstraint(Sketcher.Constraint("Radius", 0, 5.0))
sketch4.addConstraint(Sketcher.Constraint("DistanceX", 0, 3, -1, 1, 55.0))
sketch4.addConstraint(Sketcher.Constraint("DistanceY", -1, 1, 0, 3, 55.0))
sketch4.addConstraint(Sketcher.Constraint("DistanceX", 4, 3, -1, 1, 40.0))
sketch4.addConstraint(Sketcher.Constraint("DistanceX", 8, 3, -1, 1, 25.0))
sketch4.addConstraint(Sketcher.Constraint("DistanceY", -1, 1, 12, 3, 40.0))
sketch4.addConstraint(Sketcher.Constraint("DistanceY", -1, 1, 16, 3, 25.0))
pocket3 = body.newObject("PartDesign::Pocket", "Pocket002")
pocket3.Profile = sketch4
pocket3.Length = 254

doc.recompute()
